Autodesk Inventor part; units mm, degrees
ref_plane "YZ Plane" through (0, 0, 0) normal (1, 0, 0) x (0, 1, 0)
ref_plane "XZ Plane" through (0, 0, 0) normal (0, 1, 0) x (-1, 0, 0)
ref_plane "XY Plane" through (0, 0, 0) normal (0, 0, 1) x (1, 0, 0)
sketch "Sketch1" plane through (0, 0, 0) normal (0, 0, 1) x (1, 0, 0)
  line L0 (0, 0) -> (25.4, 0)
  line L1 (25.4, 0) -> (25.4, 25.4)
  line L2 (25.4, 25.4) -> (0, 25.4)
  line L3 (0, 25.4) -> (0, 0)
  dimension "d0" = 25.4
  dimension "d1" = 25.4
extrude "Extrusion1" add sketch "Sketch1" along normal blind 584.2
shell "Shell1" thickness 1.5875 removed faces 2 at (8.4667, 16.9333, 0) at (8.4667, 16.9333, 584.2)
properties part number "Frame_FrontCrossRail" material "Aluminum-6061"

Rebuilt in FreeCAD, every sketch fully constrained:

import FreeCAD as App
import Part
import Sketcher

V = App.Vector
Q = App.Units.Quantity


def faces_at(feature, points):
    """Names of the faces that lie closest to the given points."""
    faces = feature.Shape.Faces
    near = lambda p: min(range(len(faces)), key=lambda i: faces[i].distToShape(Part.Vertex(*p))[0])
    return sorted({f"Face{near(p) + 1}" for p in points})


def add_polygon(sketch, points):
    """Adds a closed chain of lines whose ends are joined by coincident constraints."""
    first, n = sketch.GeometryCount, len(points)
    for a, b in zip(points, points[1:] + points[:1]):
        sketch.addGeometry(Part.LineSegment(App.Vector(*a, 0), App.Vector(*b, 0)), False)
    for i in range(n):
        sketch.addConstraint(Sketcher.Constraint("Coincident", first + i, 2, first + (i + 1) % n, 1))

doc = App.newDocument("Part")
body = doc.addObject("PartDesign::Body", "Body")

# Sketch on XY plane
sketch1 = doc.addObject("Sketcher::SketchObject", "Sketch")
body.addObject(sketch1)
sketch1.AttachmentSupport = (doc.XY_Plane, [""])
sketch1.MapMode = "FlatFace"
add_polygon(sketch1, [(0, 25), (0, 0), (25, 0), (25, 25)])  # lines 0-3
sketch1.addConstraint([
    Sketcher.Constraint("Vertical", 0),
    Sketcher.Constraint("Horizontal", 1),
    Sketcher.Constraint("Vertical", 2),
    Sketcher.Constraint("Horizontal", 3),
    Sketcher.Constraint("Coincident", 0, 2, -1, 1),
    Sketcher.Constraint("Equal", 3, 0),
    Sketcher.Constraint("DistanceX", 1, 1, 1, 2, Q("1 in")),
])
pad1 = doc.addObject("PartDesign::Pad", "Pad")
body.addObject(pad1)
pad1.Profile = sketch1
pad1.Length = Q("23 in")
doc.recompute()

thickness = doc.addObject("PartDesign::Thickness", "Thickness")
body.addObject(thickness)
thickness.Base = (pad1, faces_at(pad1, [(8.467, 16.933, 0), (8.467, 16.933, 584.2)]))
thickness.Value = Q("0.0625 in")
thickness.Reversed = True
thickness.Join = "Intersection"

doc.recompute()
